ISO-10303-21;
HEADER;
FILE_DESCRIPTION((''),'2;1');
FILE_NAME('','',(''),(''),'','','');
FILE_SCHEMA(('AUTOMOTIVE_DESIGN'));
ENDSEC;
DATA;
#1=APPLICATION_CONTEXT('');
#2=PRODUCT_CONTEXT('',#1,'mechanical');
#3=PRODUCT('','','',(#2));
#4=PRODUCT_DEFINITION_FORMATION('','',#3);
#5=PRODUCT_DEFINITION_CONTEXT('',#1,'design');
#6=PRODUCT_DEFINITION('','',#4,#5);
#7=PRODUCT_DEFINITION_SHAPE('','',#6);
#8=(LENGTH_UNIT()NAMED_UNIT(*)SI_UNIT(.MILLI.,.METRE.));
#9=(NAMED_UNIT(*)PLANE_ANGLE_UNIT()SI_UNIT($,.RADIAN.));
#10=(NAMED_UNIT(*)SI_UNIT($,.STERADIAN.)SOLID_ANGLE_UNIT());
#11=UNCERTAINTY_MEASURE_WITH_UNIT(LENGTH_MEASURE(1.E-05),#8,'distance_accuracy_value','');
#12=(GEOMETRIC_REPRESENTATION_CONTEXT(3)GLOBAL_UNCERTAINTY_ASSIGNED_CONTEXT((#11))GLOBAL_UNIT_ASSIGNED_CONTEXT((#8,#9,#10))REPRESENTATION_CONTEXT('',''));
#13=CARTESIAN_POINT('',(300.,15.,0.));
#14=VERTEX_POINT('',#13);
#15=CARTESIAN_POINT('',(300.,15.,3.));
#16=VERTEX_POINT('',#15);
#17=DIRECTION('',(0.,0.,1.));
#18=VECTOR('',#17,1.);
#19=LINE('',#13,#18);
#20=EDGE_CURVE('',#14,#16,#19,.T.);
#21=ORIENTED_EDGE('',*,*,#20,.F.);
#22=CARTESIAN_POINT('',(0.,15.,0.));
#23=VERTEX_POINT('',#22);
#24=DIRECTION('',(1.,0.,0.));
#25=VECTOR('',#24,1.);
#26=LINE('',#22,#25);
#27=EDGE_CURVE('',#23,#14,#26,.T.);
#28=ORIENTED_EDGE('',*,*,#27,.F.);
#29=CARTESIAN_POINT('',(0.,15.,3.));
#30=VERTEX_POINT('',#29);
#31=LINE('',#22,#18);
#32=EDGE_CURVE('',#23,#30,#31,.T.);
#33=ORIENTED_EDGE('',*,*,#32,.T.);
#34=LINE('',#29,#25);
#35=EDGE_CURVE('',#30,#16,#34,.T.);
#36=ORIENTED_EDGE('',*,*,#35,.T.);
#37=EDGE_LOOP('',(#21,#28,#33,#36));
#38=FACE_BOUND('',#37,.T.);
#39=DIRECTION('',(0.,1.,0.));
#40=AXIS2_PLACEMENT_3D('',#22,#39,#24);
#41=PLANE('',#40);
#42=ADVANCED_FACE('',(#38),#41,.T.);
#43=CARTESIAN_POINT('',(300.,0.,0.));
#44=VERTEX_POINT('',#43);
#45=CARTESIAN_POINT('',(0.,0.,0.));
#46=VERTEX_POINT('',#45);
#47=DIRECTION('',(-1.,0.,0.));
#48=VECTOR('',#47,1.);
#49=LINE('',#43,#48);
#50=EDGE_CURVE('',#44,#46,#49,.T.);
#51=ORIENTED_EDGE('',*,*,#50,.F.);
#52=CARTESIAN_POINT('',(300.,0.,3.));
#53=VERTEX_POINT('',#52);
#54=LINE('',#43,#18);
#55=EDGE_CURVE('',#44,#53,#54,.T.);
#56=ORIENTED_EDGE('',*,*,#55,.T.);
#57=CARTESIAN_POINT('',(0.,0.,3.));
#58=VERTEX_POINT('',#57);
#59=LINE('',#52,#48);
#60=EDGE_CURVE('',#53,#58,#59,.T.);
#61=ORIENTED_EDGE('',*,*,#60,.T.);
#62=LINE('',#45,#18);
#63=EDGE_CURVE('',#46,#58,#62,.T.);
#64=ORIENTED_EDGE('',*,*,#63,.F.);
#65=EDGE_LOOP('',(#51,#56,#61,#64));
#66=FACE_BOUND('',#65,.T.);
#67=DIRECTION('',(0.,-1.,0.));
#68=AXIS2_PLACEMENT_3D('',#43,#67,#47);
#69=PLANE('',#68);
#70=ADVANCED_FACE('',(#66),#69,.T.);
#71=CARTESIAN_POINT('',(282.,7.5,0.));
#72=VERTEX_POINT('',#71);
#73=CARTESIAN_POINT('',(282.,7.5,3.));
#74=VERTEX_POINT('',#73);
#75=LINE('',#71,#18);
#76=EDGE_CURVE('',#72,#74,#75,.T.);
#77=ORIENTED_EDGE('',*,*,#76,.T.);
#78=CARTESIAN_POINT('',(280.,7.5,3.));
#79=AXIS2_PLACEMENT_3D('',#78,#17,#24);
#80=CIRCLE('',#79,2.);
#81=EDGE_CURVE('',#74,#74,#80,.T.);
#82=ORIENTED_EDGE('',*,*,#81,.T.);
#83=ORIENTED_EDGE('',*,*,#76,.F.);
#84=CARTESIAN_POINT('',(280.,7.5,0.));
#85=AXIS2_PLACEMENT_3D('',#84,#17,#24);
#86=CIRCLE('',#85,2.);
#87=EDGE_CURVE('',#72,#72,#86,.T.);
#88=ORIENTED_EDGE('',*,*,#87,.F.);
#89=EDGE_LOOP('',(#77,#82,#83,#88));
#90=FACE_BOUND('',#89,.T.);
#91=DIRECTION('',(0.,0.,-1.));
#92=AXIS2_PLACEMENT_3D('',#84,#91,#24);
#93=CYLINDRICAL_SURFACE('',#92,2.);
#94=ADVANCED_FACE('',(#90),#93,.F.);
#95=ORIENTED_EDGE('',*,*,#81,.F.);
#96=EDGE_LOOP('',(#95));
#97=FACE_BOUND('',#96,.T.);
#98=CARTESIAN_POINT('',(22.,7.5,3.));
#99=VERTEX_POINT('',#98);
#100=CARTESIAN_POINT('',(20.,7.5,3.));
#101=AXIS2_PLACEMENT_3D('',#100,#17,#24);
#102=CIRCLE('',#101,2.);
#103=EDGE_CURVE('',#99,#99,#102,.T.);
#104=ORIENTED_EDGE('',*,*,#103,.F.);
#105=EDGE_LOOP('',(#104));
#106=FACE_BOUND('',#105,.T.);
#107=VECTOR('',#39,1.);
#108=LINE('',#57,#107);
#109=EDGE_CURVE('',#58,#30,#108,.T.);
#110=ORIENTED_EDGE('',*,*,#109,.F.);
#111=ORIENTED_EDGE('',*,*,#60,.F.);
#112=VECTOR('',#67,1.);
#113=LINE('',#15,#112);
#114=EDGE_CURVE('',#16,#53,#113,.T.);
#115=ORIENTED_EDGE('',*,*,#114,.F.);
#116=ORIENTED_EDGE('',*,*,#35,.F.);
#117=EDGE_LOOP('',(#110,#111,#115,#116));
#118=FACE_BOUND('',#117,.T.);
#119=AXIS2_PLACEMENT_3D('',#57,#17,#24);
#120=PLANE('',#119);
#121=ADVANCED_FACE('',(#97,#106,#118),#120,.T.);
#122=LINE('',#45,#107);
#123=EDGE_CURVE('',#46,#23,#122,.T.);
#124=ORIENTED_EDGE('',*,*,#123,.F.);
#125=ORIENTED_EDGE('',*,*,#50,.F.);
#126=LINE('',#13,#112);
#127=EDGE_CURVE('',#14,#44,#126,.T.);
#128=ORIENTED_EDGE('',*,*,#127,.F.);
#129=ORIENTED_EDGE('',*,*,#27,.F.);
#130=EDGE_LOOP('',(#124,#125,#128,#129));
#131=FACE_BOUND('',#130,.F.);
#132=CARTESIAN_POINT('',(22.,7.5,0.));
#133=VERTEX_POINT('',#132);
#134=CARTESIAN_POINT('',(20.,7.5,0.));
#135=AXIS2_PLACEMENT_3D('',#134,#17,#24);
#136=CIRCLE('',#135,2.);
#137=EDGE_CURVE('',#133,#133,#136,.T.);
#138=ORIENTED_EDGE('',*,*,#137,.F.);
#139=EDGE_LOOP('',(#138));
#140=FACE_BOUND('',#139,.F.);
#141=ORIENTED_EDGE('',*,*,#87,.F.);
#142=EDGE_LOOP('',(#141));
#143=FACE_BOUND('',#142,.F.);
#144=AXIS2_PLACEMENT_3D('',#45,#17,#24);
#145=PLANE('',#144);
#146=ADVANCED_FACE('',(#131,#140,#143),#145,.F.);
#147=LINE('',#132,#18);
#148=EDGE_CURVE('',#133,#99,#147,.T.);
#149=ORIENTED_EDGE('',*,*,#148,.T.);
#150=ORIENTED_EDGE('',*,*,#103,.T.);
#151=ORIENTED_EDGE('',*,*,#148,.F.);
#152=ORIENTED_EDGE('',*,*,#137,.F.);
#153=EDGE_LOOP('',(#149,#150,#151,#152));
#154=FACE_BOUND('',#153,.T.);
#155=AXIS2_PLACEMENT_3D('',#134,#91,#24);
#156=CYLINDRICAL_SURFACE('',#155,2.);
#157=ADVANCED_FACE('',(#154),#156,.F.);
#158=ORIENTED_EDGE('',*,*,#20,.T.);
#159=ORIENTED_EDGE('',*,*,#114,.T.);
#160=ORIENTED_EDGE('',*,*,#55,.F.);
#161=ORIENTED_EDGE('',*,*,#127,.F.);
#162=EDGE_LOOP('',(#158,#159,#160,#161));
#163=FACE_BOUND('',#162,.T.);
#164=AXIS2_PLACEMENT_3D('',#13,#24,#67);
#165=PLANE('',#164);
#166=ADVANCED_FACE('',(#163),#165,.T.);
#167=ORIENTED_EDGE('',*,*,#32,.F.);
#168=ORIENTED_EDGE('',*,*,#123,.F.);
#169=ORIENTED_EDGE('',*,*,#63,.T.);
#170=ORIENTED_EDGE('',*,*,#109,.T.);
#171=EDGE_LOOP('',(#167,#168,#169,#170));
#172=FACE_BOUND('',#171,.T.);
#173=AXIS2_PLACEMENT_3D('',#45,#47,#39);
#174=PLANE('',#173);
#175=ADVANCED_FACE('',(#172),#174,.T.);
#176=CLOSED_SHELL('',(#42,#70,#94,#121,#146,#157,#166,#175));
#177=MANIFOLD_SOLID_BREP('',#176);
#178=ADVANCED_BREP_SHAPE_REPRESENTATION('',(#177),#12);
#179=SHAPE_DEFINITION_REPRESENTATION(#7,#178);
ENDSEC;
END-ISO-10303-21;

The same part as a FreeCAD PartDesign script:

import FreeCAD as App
import Part
import Sketcher

V = App.Vector
Q = App.Units.Quantity


def add_polygon(sketch, points):
    """Adds a closed chain of lines whose ends are joined by coincident constraints."""
    first, n = sketch.GeometryCount, len(points)
    for a, b in zip(points, points[1:] + points[:1]):
        sketch.addGeometry(Part.LineSegment(App.Vector(*a, 0), App.Vector(*b, 0)), False)
    for i in range(n):
        sketch.addConstraint(Sketcher.Constraint("Coincident", first + i, 2, first + (i + 1) % n, 1))

doc = App.newDocument("Part")
body = doc.addObject("PartDesign::Body", "Body")

# Sketch on XY plane
sketch1 = body.newObject("Sketcher::SketchObject", "Sketch")
sketch1.AttachmentSupport = (doc.getObject("XY_Plane"), [""])
sketch1.MapMode = "FlatFace"
add_polygon(sketch1, [(300, 15), (0, 15), (0, 0), (300, 0)])  # lines 0-3
sketch1.addGeometry(Part.Circle(V(20, 7.5, 0), V(0, 0, 1), 2), False)  # 4
sketch1.addGeometry(Part.Circle(V(280, 7.5, 0), V(0, 0, 1), 2), False)  # 5
sketch1.addConstraint(Sketcher.Constraint("Horizontal", 0))
sketch1.addConstraint(Sketcher.Constraint("Vertical", 1))
sketch1.addConstraint(Sketcher.Constraint("Horizontal", 2))
sketch1.addConstraint(Sketcher.Constraint("Vertical", 3))
sketch1.addConstraint(Sketcher.Constraint("Coincident", 1, 2, -1, 1))
sketch1.addConstraint(Sketcher.Constraint("Equal", 4, 5))
sketch1.addConstraint(Sketcher.Constraint("Horizontal", 4, 3, 5, 3))
sketch1.addConstraint(Sketcher.Constraint("Diameter", 4, Q("4 mm")))
sketch1.addConstraint(Sketcher.Constraint("DistanceX", 0, 2, 0, 1, Q("300 mm")))
sketch1.addConstraint(Sketcher.Constraint("DistanceY", 1, 2, 1, 1, Q("15 mm")))
sketch1.addConstraint(Sketcher.Constraint("DistanceX", -1, 1, 4, 3, Q("20 mm")))
sketch1.addConstraint(Sketcher.Constraint("DistanceX", 5, 3, 2, 2, Q("20 mm")))
sketch1.addConstraint(Sketcher.Constraint("DistanceY", -1, 1, 4, 3, Q("7.5 mm")))
pad1 = body.newObject("PartDesign::Pad", "Pad")
pad1.Profile = sketch1
pad1.Length = 3

doc.recompute()
